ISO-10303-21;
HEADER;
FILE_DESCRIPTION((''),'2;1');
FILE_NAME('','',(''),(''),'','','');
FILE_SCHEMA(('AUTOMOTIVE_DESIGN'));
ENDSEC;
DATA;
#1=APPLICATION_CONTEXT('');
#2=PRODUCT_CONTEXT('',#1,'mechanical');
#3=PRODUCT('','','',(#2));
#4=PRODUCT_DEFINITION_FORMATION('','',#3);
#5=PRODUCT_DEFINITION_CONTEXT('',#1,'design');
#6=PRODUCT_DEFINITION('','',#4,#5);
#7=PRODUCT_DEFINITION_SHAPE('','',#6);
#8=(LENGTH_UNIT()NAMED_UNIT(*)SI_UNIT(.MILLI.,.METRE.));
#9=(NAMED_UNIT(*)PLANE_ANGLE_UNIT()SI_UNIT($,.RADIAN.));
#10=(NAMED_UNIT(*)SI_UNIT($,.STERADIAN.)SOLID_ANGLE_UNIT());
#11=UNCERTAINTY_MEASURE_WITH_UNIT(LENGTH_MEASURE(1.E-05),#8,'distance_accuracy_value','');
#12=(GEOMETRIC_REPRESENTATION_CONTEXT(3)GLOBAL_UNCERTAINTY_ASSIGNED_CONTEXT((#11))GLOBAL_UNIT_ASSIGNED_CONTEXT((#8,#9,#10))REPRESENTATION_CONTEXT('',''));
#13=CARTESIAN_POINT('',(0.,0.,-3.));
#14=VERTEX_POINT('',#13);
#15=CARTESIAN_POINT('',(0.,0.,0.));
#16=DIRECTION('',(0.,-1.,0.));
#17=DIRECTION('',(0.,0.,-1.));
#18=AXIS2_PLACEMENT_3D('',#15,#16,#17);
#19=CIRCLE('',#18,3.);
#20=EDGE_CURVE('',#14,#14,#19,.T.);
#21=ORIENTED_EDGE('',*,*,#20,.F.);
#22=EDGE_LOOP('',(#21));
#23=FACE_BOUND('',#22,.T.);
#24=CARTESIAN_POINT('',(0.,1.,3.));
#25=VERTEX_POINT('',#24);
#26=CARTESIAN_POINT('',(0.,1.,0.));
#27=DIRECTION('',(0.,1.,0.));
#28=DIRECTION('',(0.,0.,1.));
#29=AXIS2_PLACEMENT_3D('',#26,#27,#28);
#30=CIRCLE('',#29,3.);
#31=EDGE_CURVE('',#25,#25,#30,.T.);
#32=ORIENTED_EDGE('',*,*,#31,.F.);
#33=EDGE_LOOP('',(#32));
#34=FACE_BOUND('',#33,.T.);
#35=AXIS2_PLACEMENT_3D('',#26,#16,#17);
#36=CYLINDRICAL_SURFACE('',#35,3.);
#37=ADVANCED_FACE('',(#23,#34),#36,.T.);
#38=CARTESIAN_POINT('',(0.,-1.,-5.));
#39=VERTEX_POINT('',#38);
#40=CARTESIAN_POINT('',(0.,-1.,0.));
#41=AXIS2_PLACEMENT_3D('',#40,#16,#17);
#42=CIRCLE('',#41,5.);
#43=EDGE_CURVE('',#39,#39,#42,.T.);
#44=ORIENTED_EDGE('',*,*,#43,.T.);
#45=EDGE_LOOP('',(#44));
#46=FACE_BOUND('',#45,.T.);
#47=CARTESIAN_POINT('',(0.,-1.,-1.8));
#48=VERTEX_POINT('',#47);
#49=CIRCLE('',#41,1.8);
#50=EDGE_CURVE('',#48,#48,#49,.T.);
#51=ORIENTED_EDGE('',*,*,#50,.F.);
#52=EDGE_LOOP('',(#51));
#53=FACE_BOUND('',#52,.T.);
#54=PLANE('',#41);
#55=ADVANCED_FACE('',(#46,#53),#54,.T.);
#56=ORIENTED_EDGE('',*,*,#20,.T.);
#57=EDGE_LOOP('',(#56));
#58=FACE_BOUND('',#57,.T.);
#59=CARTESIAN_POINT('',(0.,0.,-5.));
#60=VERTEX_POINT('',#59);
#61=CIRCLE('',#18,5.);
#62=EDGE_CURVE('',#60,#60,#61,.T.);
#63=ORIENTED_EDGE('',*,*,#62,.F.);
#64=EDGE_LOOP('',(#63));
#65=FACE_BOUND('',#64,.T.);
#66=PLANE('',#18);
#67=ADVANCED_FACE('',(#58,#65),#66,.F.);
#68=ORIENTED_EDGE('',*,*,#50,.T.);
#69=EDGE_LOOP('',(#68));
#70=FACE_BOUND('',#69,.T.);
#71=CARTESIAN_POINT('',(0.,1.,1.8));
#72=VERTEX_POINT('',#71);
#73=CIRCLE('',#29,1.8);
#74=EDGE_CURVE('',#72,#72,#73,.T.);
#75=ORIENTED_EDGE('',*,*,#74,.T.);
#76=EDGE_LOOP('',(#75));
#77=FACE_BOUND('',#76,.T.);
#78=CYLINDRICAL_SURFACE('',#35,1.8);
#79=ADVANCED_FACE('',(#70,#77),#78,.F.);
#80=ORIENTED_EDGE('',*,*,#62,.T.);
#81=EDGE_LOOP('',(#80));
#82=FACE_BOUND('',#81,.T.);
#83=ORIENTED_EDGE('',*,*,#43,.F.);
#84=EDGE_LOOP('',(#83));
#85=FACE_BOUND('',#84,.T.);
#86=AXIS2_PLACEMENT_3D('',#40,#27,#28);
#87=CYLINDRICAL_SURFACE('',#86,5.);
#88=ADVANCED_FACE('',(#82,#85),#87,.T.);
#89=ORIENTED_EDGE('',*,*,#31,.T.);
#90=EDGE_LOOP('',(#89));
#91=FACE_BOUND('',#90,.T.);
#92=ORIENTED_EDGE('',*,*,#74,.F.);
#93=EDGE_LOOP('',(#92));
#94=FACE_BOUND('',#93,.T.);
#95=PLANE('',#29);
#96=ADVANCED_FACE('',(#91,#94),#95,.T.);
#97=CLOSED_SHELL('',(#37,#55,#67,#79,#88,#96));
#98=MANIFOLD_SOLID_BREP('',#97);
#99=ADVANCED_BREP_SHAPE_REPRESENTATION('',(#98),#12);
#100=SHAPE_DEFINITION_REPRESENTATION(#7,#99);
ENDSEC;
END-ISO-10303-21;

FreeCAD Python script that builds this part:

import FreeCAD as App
import Part
import Sketcher
Q = App.Units.Quantity

doc = App.newDocument("Part")
body = doc.addObject("PartDesign::Body", "Body")

sketch1 = doc.addObject("Sketcher::SketchObject", "Sketch")
body.addObject(sketch1)
sketch1.AttachmentSupport = (doc.XZ_Plane, [""])
sketch1.MapMode = "FlatFace"
sketch1.addGeometry([
    Part.Circle(App.Vector(0, 0, 0), App.Vector(0, 0, 1), 3),
    Part.Circle(App.Vector(0, 0, 0), App.Vector(0, 0, 1), 1.8),
], False)
sketch1.addConstraint([
    Sketcher.Constraint("Coincident", 0, 3, -1, 1),
    Sketcher.Constraint("Coincident", 1, 3, -1, 1),
    Sketcher.Constraint("Diameter", 0, Q("6 mm")),
    Sketcher.Constraint("Diameter", 1, Q("3.6 mm")),
])
pad1 = doc.addObject("PartDesign::Pad", "Pad")
body.addObject(pad1)
pad1.Profile = sketch1
pad1.Length = 1
pad1.Reversed = True

sketch2 = doc.addObject("Sketcher::SketchObject", "Sketch001")
body.addObject(sketch2)
sketch2.AttachmentSupport = (doc.XZ_Plane, [""])
sketch2.MapMode = "FlatFace"
sketch2.addGeometry([
    Part.Circle(App.Vector(0, 0, 0), App.Vector(0, 0, 1), 5),
    Part.Circle(App.Vector(0, 0, 0), App.Vector(0, 0, 1), 1.8),
], False)
sketch2.addConstraint([
    Sketcher.Constraint("Coincident", 0, 3, -1, 1),
    Sketcher.Constraint("Coincident", 1, 3, -1, 1),
    Sketcher.Constraint("Diameter", 0, Q("10 mm")),
    Sketcher.Constraint("Diameter", 1, Q("3.6 mm")),
])
pad2 = doc.addObject("PartDesign::Pad", "Pad001")
body.addObject(pad2)
pad2.Profile = sketch2
pad2.Length = 1

doc.recompute()
